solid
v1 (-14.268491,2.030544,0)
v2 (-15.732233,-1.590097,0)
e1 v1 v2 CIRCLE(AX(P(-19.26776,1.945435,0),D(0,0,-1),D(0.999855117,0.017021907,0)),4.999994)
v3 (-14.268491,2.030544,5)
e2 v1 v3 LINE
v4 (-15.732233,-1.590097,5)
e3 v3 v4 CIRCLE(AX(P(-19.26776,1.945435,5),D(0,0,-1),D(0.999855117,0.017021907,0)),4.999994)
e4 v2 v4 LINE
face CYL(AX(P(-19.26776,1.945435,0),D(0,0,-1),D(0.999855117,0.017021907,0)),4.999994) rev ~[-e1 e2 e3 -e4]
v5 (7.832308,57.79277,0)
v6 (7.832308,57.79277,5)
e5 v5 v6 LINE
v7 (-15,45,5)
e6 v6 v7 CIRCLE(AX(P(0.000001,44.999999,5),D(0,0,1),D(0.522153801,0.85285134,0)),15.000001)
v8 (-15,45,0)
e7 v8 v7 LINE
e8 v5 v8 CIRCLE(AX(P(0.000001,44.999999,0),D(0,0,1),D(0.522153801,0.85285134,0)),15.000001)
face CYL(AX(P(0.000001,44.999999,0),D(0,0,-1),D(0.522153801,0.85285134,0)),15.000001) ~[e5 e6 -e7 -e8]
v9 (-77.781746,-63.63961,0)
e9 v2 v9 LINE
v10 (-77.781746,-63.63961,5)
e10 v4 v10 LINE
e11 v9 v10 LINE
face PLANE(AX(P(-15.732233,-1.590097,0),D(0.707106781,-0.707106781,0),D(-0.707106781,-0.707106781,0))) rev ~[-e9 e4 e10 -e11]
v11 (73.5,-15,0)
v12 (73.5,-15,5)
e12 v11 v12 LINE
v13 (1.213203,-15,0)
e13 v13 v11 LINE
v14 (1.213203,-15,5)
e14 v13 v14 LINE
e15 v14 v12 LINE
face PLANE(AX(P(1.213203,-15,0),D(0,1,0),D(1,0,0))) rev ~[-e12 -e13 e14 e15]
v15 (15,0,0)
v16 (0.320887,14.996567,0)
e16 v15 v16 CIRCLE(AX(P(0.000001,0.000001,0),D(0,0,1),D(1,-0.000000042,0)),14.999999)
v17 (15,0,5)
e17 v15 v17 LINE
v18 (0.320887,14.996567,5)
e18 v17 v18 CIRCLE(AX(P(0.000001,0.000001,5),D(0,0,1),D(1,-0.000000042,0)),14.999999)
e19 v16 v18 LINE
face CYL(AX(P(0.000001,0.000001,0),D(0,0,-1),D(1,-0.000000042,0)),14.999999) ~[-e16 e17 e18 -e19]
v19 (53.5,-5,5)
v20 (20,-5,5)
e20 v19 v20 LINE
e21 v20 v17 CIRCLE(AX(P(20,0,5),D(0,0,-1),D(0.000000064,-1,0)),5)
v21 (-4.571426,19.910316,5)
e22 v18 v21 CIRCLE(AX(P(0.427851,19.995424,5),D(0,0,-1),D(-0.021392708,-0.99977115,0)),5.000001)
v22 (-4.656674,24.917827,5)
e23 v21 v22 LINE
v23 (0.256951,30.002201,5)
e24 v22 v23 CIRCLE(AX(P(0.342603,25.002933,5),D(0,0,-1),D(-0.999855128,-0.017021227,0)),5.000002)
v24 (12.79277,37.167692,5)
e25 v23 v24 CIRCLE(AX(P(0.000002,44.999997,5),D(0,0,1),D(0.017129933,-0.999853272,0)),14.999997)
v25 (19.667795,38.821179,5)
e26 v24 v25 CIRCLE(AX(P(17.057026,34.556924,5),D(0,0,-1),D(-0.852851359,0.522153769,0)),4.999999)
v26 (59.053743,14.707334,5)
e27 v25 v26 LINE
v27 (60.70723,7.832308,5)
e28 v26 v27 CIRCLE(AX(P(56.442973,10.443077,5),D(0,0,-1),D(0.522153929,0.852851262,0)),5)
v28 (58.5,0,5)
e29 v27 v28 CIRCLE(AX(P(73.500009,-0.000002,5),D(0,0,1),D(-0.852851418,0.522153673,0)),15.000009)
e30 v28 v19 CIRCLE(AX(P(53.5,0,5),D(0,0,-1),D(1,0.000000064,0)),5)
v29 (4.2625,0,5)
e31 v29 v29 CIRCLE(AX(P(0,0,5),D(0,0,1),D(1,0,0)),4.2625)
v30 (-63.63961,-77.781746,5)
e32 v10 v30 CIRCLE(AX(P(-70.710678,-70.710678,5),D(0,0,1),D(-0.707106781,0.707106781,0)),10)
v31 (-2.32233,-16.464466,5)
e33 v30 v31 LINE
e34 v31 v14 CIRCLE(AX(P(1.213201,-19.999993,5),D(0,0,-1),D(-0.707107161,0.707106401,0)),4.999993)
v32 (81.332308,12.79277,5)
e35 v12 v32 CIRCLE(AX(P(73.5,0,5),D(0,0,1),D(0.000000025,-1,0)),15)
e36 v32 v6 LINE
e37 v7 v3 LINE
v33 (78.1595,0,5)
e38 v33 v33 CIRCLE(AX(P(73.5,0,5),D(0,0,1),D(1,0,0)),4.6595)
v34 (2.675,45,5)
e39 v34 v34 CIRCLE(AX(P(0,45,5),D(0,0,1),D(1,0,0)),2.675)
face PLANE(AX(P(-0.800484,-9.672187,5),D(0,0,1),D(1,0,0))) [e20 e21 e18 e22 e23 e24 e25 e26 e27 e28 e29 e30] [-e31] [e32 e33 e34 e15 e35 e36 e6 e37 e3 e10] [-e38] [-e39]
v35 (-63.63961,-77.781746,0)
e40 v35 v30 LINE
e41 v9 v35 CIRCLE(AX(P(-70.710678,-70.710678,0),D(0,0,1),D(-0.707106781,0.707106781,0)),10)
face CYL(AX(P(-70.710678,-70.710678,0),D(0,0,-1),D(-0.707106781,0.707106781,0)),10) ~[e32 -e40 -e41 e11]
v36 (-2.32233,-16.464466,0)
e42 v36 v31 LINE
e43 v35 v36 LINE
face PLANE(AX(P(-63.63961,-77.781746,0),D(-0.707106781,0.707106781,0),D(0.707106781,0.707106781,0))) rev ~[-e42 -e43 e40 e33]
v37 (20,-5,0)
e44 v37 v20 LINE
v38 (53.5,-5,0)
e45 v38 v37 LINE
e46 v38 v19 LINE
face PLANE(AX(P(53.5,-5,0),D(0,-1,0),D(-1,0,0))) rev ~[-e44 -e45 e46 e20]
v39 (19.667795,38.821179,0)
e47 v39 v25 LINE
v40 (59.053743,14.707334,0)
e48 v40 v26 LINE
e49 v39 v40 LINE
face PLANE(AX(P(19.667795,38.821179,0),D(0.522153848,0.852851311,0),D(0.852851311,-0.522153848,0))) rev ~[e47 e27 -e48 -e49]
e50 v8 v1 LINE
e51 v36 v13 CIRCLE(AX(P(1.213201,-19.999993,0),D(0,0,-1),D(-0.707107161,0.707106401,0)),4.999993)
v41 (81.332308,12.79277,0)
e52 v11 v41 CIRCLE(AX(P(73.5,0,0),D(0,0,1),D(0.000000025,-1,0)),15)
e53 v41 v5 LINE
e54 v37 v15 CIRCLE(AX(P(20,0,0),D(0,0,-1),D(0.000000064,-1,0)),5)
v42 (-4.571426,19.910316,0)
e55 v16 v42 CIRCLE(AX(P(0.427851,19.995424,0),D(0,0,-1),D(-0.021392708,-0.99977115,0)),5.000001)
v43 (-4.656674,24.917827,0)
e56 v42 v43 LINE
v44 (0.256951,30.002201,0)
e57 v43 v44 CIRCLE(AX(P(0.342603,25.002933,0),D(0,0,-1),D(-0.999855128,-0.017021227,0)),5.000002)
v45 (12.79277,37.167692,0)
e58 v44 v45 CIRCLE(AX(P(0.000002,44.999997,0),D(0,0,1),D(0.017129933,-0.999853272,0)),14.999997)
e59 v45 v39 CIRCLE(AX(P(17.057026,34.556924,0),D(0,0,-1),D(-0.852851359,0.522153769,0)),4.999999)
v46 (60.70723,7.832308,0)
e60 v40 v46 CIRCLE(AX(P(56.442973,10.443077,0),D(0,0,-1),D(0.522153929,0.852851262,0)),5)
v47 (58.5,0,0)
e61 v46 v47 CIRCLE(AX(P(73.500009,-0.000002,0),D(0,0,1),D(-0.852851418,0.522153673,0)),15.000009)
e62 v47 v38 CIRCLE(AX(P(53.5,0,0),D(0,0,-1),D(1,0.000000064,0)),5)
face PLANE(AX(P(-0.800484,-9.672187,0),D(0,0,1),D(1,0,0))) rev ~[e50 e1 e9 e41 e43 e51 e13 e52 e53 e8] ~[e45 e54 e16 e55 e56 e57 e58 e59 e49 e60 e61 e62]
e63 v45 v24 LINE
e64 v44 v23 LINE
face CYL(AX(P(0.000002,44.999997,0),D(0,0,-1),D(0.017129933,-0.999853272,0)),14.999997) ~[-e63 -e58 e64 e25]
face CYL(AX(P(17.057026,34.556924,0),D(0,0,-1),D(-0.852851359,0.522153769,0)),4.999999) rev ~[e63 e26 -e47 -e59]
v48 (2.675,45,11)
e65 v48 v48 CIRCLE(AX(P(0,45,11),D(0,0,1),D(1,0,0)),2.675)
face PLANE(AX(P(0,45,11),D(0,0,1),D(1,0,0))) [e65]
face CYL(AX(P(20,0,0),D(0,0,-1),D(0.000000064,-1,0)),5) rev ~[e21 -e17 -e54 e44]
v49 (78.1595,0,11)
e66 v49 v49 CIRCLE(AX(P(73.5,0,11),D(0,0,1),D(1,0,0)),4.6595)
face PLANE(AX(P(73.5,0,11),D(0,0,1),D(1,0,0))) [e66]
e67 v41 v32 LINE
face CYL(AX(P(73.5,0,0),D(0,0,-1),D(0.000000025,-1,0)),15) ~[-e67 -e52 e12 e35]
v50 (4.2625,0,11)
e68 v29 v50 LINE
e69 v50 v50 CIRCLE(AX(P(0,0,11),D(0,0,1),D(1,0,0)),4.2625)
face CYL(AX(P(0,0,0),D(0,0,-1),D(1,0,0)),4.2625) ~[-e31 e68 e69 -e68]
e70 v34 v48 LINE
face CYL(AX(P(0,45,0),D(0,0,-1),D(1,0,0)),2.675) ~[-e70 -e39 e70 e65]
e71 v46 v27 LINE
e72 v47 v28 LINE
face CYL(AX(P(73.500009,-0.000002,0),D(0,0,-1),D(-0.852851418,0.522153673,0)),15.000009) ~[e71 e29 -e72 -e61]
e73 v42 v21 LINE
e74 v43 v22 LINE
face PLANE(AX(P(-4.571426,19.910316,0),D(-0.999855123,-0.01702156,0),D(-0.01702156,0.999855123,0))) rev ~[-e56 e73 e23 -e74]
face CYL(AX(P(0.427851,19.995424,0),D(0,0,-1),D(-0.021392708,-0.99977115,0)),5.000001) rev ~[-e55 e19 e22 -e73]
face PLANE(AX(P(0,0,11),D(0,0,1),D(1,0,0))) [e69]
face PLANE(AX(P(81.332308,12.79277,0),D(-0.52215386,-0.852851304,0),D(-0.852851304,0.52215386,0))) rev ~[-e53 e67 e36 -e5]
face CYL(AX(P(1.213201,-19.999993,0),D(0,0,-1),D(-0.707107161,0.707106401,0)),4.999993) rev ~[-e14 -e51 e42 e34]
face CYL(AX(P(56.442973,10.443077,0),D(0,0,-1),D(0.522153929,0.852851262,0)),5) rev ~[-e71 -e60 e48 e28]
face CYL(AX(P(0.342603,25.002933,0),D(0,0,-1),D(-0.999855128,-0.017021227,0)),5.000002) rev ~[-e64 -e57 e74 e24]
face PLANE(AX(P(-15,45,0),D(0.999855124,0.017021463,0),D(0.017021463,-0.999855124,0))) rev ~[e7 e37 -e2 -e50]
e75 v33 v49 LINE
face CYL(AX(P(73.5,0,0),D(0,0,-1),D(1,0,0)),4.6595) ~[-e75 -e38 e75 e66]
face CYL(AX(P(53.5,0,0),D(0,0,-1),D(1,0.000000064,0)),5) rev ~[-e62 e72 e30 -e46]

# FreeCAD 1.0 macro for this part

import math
import FreeCAD as App
import Part
import Sketcher
Q = App.Units.Quantity

doc = App.newDocument("Part")
body = doc.addObject("PartDesign::Body", "Body")

sketch1 = body.newObject("Sketcher::SketchObject", "Sketch")
sketch1.AttachmentSupport = (doc.getObject("XY_Plane"), [""])
sketch1.MapMode = "FlatFace"
sketch1.addGeometry(Part.LineSegment(App.Vector(1.2, -15, 0), App.Vector(73.5, -15, 0)), False)
sketch1.addGeometry(Part.ArcOfCircle(Part.Circle(App.Vector(73.5, 0, 0), App.Vector(0, 0, 1), 15), math.radians(-90), math.radians(59)), False)
sketch1.addGeometry(Part.LineSegment(App.Vector(81.3, 12.8, 0), App.Vector(7.8, 57.8, 0)), False)
sketch1.addGeometry(Part.ArcOfCircle(Part.Circle(App.Vector(0, 45, 0), App.Vector(0, 0, 1), 15), math.radians(59), math.radians(180)), False)
sketch1.addGeometry(Part.LineSegment(App.Vector(-15, 45, 0), App.Vector(-14.3, 2, 0)), False)
sketch1.addGeometry(Part.ArcOfCircle(Part.Circle(App.Vector(-19.3, 1.9, 0), App.Vector(0, 0, 1), 5), math.radians(-45), math.radians(1)), False)
sketch1.addGeometry(Part.LineSegment(App.Vector(-15.7, -1.6, 0), App.Vector(-77.8, -63.6, 0)), False)
sketch1.addGeometry(Part.ArcOfCircle(Part.Circle(App.Vector(-70.7, -70.7, 0), App.Vector(0, 0, 1), 10), math.radians(135), math.radians(315)), False)
sketch1.addGeometry(Part.LineSegment(App.Vector(-63.6, -77.8, 0), App.Vector(-2.3, -16.5, 0)), False)
sketch1.addGeometry(Part.ArcOfCircle(Part.Circle(App.Vector(1.2, -20, 0), App.Vector(0, 0, 1), 5), math.radians(90), math.radians(135)), False)
sketch1.addGeometry(Part.Circle(App.Vector(0, 0, 0), App.Vector(0, 0, 1), 4.3), False)
sketch1.addGeometry(Part.LineSegment(App.Vector(-4.6, 19.9, 0), App.Vector(-4.7, 24.9, 0)), False)
sketch1.addGeometry(Part.ArcOfCircle(Part.Circle(App.Vector(0.3, 25, 0), App.Vector(0, 0, 1), 5), math.radians(91), math.radians(181)), False)
sketch1.addGeometry(Part.ArcOfCircle(Part.Circle(App.Vector(0, 45, 0), App.Vector(0, 0, 1), 15), math.radians(-89), math.radians(-31)), False)
sketch1.addGeometry(Part.ArcOfCircle(Part.Circle(App.Vector(17.1, 34.6, 0), App.Vector(0, 0, 1), 5), math.radians(59), math.radians(149)), False)
sketch1.addGeometry(Part.LineSegment(App.Vector(19.7, 38.8, 0), App.Vector(59.1, 14.7, 0)), False)
sketch1.addGeometry(Part.ArcOfCircle(Part.Circle(App.Vector(56.4, 10.4, 0), App.Vector(0, 0, 1), 5), math.radians(-31), math.radians(59)), False)
sketch1.addGeometry(Part.ArcOfCircle(Part.Circle(App.Vector(73.5, 0, 0), App.Vector(0, 0, 1), 15), math.radians(149), math.radians(180)), False)
sketch1.addGeometry(Part.ArcOfCircle(Part.Circle(App.Vector(53.5, 0, 0), App.Vector(0, 0, 1), 5), math.radians(-90), math.radians(0)), False)
sketch1.addGeometry(Part.LineSegment(App.Vector(53.5, -5, 0), App.Vector(20, -5, 0)), False)
sketch1.addGeometry(Part.ArcOfCircle(Part.Circle(App.Vector(20, 0, 0), App.Vector(0, 0, 1), 5), math.radians(180), math.radians(270)), False)
sketch1.addGeometry(Part.ArcOfCircle(Part.Circle(App.Vector(0, 0, 0), App.Vector(0, 0, 1), 15), math.radians(0), math.radians(89)), False)
sketch1.addGeometry(Part.ArcOfCircle(Part.Circle(App.Vector(0.4, 20, 0), App.Vector(0, 0, 1), 5), math.radians(-179), math.radians(-91)), False)
sketch1.addGeometry(Part.Circle(App.Vector(73.5, 0, 0), App.Vector(0, 0, 1), 4.7), False)
sketch1.addGeometry(Part.Circle(App.Vector(0, 45, 0), App.Vector(0, 0, 1), 2.7), False)
sketch1.addConstraint(Sketcher.Constraint("Tangent", 0, 2, 1, 1))
sketch1.addConstraint(Sketcher.Constraint("Tangent", 1, 2, 2, 1))
sketch1.addConstraint(Sketcher.Constraint("Tangent", 2, 2, 3, 1))
sketch1.addConstraint(Sketcher.Constraint("Coincident", 3, 2, 4, 1))
sketch1.addConstraint(Sketcher.Constraint("Tangent", 4, 2, 5, 2))
sketch1.addConstraint(Sketcher.Constraint("Tangent", 5, 1, 6, 1))
sketch1.addConstraint(Sketcher.Constraint("Tangent", 6, 2, 7, 1))
sketch1.addConstraint(Sketcher.Constraint("Tangent", 7, 2, 8, 1))
sketch1.addConstraint(Sketcher.Constraint("Tangent", 8, 2, 9, 2))
sketch1.addConstraint(Sketcher.Constraint("Tangent", 9, 1, 0, 1))
sketch1.addConstraint(Sketcher.Constraint("Tangent", 11, 2, 12, 2))
sketch1.addConstraint(Sketcher.Constraint("Tangent", 12, 1, 13, 1))
sketch1.addConstraint(Sketcher.Constraint("Tangent", 13, 2, 14, 2))
sketch1.addConstraint(Sketcher.Constraint("Tangent", 14, 1, 15, 1))
sketch1.addConstraint(Sketcher.Constraint("Tangent", 15, 2, 16, 2))
sketch1.addConstraint(Sketcher.Constraint("Tangent", 16, 1, 17, 1))
sketch1.addConstraint(Sketcher.Constraint("Tangent", 17, 2, 18, 2))
sketch1.addConstraint(Sketcher.Constraint("Tangent", 18, 1, 19, 1))
sketch1.addConstraint(Sketcher.Constraint("Tangent", 19, 2, 20, 2))
sketch1.addConstraint(Sketcher.Constraint("Tangent", 20, 1, 21, 1))
sketch1.addConstraint(Sketcher.Constraint("Tangent", 21, 2, 22, 2))
sketch1.addConstraint(Sketcher.Constraint("Tangent", 22, 1, 11, 1))
sketch1.addConstraint(Sketcher.Constraint("Horizontal", 0))
sketch1.addConstraint(Sketcher.Constraint("Horizontal", 19))
sketch1.addConstraint(Sketcher.Constraint("Coincident", 10, 3, -1, 1))
sketch1.addConstraint(Sketcher.Constraint("Coincident", 21, 3, -1, 1))
sketch1.addConstraint(Sketcher.Constraint("Coincident", 13, 3, 3, 3))
sketch1.addConstraint(Sketcher.Constraint("Coincident", 17, 3, 1, 3))
sketch1.addConstraint(Sketcher.Constraint("Coincident", 23, 3, 1, 3))
sketch1.addConstraint(Sketcher.Constraint("Coincident", 24, 3, 3, 3))
sketch1.addConstraint(Sketcher.Constraint("Equal", 1, 3))
sketch1.addConstraint(Sketcher.Constraint("Equal", 5, 9))
sketch1.addConstraint(Sketcher.Constraint("Equal", 14, 16))
sketch1.addConstraint(Sketcher.Constraint("Equal", 16, 18))
sketch1.addConstraint(Sketcher.Constraint("Equal", 18, 20))
sketch1.addConstraint(Sketcher.Constraint("Equal", 13, 21))
sketch1.addConstraint(Sketcher.Constraint("Equal", 20, 22))
sketch1.addConstraint(Sketcher.Constraint("PointOnObject", 1, 3, -1))
sketch1.addConstraint(Sketcher.Constraint("PointOnObject", 3, 3, -2))
sketch1.addConstraint(Sketcher.Constraint("PointOnObject", 18, 3, -1))
sketch1.addConstraint(Sketcher.Constraint("Parallel", 6, 8))
sketch1.addConstraint(Sketcher.Constraint("Parallel", 4, 11))
sketch1.addConstraint(Sketcher.Constraint("Parallel", 2, 15))
sketch1.addConstraint(Sketcher.Constraint("Horizontal", 24, 3, 3, 2))
sketch1.addConstraint(Sketcher.Constraint("Radius", 1, Q("15 mm")))
sketch1.addConstraint(Sketcher.Constraint("Radius", 7, Q("10 mm")))
sketch1.addConstraint(Sketcher.Constraint("Radius", 12, Q("5.000002 mm")))
sketch1.addConstraint(Sketcher.Constraint("Radius", 14, Q("4.999999 mm")))
sketch1.addConstraint(Sketcher.Constraint("Radius", 21, Q("14.999999 mm")))
sketch1.addConstraint(Sketcher.Constraint("Diameter", 24, Q("5.35 mm")))
sketch1.addConstraint(Sketcher.Constraint("Angle", 6, Q("-135 deg")))
sketch1.addConstraint(Sketcher.Constraint("Diameter", 10, Q("8.525 mm")))
sketch1.addConstraint(Sketcher.Constraint("Diameter", 23, Q("9.319 mm")))
sketch1.addConstraint(Sketcher.Constraint("DistanceX", 19, 2, 19, 1, Q("33.5 mm")))
sketch1.addConstraint(Sketcher.Constraint("DistanceY", -1, 1, 3, 3, Q("44.999999 mm")))
sketch1.addConstraint(Sketcher.Constraint("DistanceX", 18, 3, 1, 3, Q("19.999999 mm")))
sketch1.addConstraint(Sketcher.Constraint("Radius", 5, Q("4.999994 mm")))
sketch1.addConstraint(Sketcher.Constraint("DistanceX", -1, 1, 9, 3, Q("1.213201 mm")))
sketch1.addConstraint(Sketcher.Constraint("DistanceY", -1, 1, 12, 1, Q("30.002201 mm")))
sketch1.addConstraint(Sketcher.Constraint("DistanceY", 5, 3, 12, 3, Q("23.057499 mm")))
sketch1.addConstraint(Sketcher.Constraint("DistanceY", 22, 3, 14, 3, Q("14.5615 mm")))
sketch1.addConstraint(Sketcher.Constraint("Distance", 8, Q("86.715729 mm")))
pad1 = body.newObject("PartDesign::Pad", "Pad")
pad1.Profile = sketch1
pad1.Length = 5

sketch2 = body.newObject("Sketcher::SketchObject", "Sketch001")
sketch2.AttachmentSupport = (doc.getObject("XY_Plane"), [""])
sketch2.MapMode = "FlatFace"
sketch2.addGeometry(Part.Circle(App.Vector(0, 45, 0), App.Vector(0, 0, 1), 2.7), False)
sketch2.addGeometry(Part.Circle(App.Vector(0, 0, 0), App.Vector(0, 0, 1), 4.3), False)
sketch2.addGeometry(Part.Circle(App.Vector(73.5, 0, 0), App.Vector(0, 0, 1), 4.7), False)
sketch2.addConstraint(Sketcher.Constraint("Coincident", 1, 3, -1, 1))
sketch2.addConstraint(Sketcher.Constraint("PointOnObject", 0, 3, -2))
sketch2.addConstraint(Sketcher.Constraint("PointOnObject", 2, 3, -1))
sketch2.addConstraint(Sketcher.Constraint("Diameter", 0, Q("5.35 mm")))
sketch2.addConstraint(Sketcher.Constraint("Diameter", 1, Q("8.525 mm")))
sketch2.addConstraint(Sketcher.Constraint("Diameter", 2, Q("9.319 mm")))
sketch2.addConstraint(Sketcher.Constraint("DistanceY", -1, 1, 0, 3, Q("45 mm")))
sketch2.addConstraint(Sketcher.Constraint("DistanceX", -1, 1, 2, 3, Q("73.5 mm")))
pad2 = body.newObject("PartDesign::Pad", "Pad001")
pad2.Profile = sketch2
pad2.Length = 11

doc.recompute()
